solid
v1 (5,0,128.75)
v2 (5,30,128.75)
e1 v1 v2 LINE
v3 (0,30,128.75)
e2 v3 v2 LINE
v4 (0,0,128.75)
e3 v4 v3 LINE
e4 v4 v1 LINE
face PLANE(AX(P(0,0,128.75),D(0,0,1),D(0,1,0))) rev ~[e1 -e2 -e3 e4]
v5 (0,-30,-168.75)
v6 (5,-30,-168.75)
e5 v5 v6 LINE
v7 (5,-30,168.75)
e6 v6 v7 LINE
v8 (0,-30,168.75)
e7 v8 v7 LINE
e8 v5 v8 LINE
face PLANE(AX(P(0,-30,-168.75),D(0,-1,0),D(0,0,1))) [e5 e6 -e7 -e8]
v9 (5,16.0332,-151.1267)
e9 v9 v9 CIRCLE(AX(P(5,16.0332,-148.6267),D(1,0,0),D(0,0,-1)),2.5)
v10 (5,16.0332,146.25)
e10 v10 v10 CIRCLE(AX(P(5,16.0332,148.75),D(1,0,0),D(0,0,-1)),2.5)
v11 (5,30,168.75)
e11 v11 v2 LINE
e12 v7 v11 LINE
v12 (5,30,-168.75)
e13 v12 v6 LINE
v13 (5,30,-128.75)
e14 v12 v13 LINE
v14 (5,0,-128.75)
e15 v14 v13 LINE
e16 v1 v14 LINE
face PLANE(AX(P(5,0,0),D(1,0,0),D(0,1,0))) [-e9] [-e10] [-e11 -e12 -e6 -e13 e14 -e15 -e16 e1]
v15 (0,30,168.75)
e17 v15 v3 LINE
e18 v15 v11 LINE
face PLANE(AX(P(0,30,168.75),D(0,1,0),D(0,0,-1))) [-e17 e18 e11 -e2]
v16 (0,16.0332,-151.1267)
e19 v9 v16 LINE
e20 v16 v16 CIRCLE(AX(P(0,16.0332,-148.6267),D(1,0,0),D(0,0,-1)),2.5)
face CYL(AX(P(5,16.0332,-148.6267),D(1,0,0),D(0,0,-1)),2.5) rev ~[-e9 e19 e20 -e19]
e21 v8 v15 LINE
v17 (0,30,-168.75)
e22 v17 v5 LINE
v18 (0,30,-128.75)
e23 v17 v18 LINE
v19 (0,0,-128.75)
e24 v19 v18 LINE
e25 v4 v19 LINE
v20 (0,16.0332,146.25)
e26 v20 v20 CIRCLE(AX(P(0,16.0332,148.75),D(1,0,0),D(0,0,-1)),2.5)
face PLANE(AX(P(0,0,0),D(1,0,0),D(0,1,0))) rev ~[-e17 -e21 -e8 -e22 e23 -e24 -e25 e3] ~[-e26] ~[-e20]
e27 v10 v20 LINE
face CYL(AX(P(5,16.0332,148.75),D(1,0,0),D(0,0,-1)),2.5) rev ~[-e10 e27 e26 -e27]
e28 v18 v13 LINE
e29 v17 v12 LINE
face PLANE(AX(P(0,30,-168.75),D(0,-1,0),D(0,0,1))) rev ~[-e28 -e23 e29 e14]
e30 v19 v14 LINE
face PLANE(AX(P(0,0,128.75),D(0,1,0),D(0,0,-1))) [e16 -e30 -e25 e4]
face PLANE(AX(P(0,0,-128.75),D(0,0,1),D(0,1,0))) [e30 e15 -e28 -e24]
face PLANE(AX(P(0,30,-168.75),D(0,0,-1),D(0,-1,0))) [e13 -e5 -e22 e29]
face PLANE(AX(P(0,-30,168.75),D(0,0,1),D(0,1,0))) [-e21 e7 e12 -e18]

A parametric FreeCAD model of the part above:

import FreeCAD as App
import Part
import Sketcher
from FreeCAD import Vector


def add_polygon(sketch, points):
    """Adds a closed chain of lines whose ends are joined by coincident constraints."""
    first, n = sketch.GeometryCount, len(points)
    for a, b in zip(points, points[1:] + points[:1]):
        sketch.addGeometry(Part.LineSegment(App.Vector(*a, 0), App.Vector(*b, 0)), False)
    for i in range(n):
        sketch.addConstraint(Sketcher.Constraint("Coincident", first + i, 2, first + (i + 1) % n, 1))

doc = App.newDocument("Part")
params = doc.addObject("Spreadsheet::Sheet", "Params")
for row, (alias, value) in enumerate([
    ("sketch1_width", "60 mm"),
    ("sketch1_height", "40 mm"),
    ("sketch1_height2", "337.5 mm"),
    ("pad1_length", "5 mm"),
    ("sketch2_diameter", "5 mm"),
    ("pocket1_length", "10 mm"),
], start=1):
    params.set(f"A{row}", alias)
    params.set(f"B{row}", "=" + value)
    params.setAlias(f"B{row}", alias)

body = doc.addObject("PartDesign::Body", "Body")

# Sketch on YZ plane
sketch1 = body.newObject("Sketcher::SketchObject", "Sketch")
sketch1.AttachmentSupport = (doc.getObject("YZ_Plane"), [""])
sketch1.MapMode = "FlatFace"
add_polygon(sketch1, [(30, 169), (-30, 169), (-30, -169), (30, -169), (30, -129), (0, -129), (0, 129), (30, 129)])  # lines 0-7
sketch1.addConstraint(Sketcher.Constraint("Horizontal", 0))
sketch1.addConstraint(Sketcher.Constraint("Vertical", 1))
sketch1.addConstraint(Sketcher.Constraint("Horizontal", 2))
sketch1.addConstraint(Sketcher.Constraint("Vertical", 3))
sketch1.addConstraint(Sketcher.Constraint("Horizontal", 4))
sketch1.addConstraint(Sketcher.Constraint("Vertical", 5))
sketch1.addConstraint(Sketcher.Constraint("Horizontal", 6))
sketch1.addConstraint(Sketcher.Constraint("Vertical", 7))
sketch1.addConstraint(Sketcher.Constraint("Symmetric", 0, 2, 2, 2, -1, 1))
sketch1.addConstraint(Sketcher.Constraint("Symmetric", 4, 2, 5, 2, -1, 1))
sketch1.addConstraint(Sketcher.Constraint("Vertical", 3, 2, 6, 2))
sketch1.addConstraint(Sketcher.Constraint("DistanceX", 0, 2, 0, 1, 60.0))
sketch1.addConstraint(Sketcher.Constraint("DistanceY", 3, 1, 3, 2, 40.0))
sketch1.addConstraint(Sketcher.Constraint("DistanceY", 1, 2, 1, 1, 337.5))
sketch1.setExpression("Constraints[19]", "Params.sketch1_width")
sketch1.setExpression("Constraints[20]", "Params.sketch1_height")
sketch1.setExpression("Constraints[21]", "Params.sketch1_height2")
pad1 = body.newObject("PartDesign::Pad", "Pad")
pad1.Profile = sketch1
pad1.setExpression("Length", "Params.pad1_length")

# Sketch on YZ plane
sketch2 = body.newObject("Sketcher::SketchObject", "Sketch001")
sketch2.AttachmentSupport = (doc.getObject("YZ_Plane"), [""])
sketch2.MapMode = "FlatFace"
sketch2.AttachmentOffset = App.Placement(Vector(0, 0, 5), App.Rotation())
sketch2.addGeometry(Part.Circle(Vector(16, 148.8, 0), Vector(0, 0, 1), 2.5), False)
sketch2.addGeometry(Part.Circle(Vector(16, -148.6, 0), Vector(0, 0, 1), 2.5), False)
sketch2.addConstraint(Sketcher.Constraint("Equal", 0, 1))
sketch2.addConstraint(Sketcher.Constraint("Vertical", 0, 3, 1, 3))
sketch2.addConstraint(Sketcher.Constraint("Diameter", 0, 5.0))
sketch2.addConstraint(Sketcher.Constraint("DistanceY", -1, 1, 0, 3, 148.75))
sketch2.addConstraint(Sketcher.Constraint("DistanceX", -1, 1, 0, 3, 16.0332))
sketch2.addConstraint(Sketcher.Constraint("DistanceY", 1, 3, -1, 1, 148.6267))
sketch2.setExpression("Constraints[2]", "Params.sketch2_diameter")
pocket1 = body.newObject("PartDesign::Pocket", "Pocket")
pocket1.Profile = sketch2
pocket1.setExpression("Length", "Params.pocket1_length")

doc.recompute()
